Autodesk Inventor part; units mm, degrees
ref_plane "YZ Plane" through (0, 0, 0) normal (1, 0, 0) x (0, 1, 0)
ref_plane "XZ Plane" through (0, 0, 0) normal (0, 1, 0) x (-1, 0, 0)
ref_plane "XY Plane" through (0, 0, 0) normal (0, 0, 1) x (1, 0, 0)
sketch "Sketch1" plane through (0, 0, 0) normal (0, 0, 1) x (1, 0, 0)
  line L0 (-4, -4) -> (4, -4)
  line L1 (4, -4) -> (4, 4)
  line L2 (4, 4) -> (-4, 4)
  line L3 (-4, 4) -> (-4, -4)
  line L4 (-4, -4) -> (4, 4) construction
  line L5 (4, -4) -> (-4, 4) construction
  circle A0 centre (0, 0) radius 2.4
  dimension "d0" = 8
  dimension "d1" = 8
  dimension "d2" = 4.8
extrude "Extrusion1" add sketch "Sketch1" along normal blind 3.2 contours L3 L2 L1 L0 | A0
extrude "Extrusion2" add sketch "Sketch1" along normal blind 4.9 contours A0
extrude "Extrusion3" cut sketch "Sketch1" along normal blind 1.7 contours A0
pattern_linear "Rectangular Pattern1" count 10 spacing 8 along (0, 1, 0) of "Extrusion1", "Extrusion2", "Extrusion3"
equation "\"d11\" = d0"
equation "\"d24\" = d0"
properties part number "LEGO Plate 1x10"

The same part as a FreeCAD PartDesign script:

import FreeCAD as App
import Part
import Sketcher
Q = App.Units.Quantity

doc = App.newDocument("Part")
params = doc.addObject("Spreadsheet::Sheet", "Params")
for row, (alias, value) in enumerate([
    ("sketch1_width", "8 mm"),
    ("pad1_length", "3.2 mm"),
    ("sketch2_diameter", "4.8 mm"),
    ("pad2_length", "4.9 mm"),
    ("sketch3_diameter", "4.8 mm"),
    ("pocket1_length", "1.7 mm"),
    ("linearpattern_pitch", "8 mm"),
], start=1):
    params.set(f"A{row}", alias)
    params.set(f"B{row}", "=" + value)
    params.setAlias(f"B{row}", alias)

body = doc.addObject("PartDesign::Body", "Body")

# Sketch on XY plane
sketch1 = body.newObject("Sketcher::SketchObject", "Sketch")
sketch1.AttachmentSupport = (doc.getObject("XY_Plane"), [""])
sketch1.MapMode = "FlatFace"
sketch1.addGeometry(Part.LineSegment(App.Vector(-4, 4, 0), App.Vector(-4, -4, 0)), False)
sketch1.addGeometry(Part.LineSegment(App.Vector(-4, -4, 0), App.Vector(4, -4, 0)), False)
sketch1.addGeometry(Part.LineSegment(App.Vector(4, -4, 0), App.Vector(4, 4, 0)), False)
sketch1.addGeometry(Part.LineSegment(App.Vector(4, 4, 0), App.Vector(-4, 4, 0)), False)
sketch1.addConstraint(Sketcher.Constraint("Coincident", 0, 2, 1, 1))
sketch1.addConstraint(Sketcher.Constraint("Coincident", 1, 2, 2, 1))
sketch1.addConstraint(Sketcher.Constraint("Coincident", 2, 2, 3, 1))
sketch1.addConstraint(Sketcher.Constraint("Coincident", 3, 2, 0, 1))
sketch1.addConstraint(Sketcher.Constraint("Vertical", 0))
sketch1.addConstraint(Sketcher.Constraint("Horizontal", 1))
sketch1.addConstraint(Sketcher.Constraint("Vertical", 2))
sketch1.addConstraint(Sketcher.Constraint("Horizontal", 3))
sketch1.addConstraint(Sketcher.Constraint("Symmetric", 0, 2, 2, 2, -1, 1))
sketch1.addConstraint(Sketcher.Constraint("Equal", 3, 0))
sketch1.addConstraint(Sketcher.Constraint("DistanceX", 1, 1, 1, 2, Q("8 mm")))
sketch1.setExpression("Constraints[10]", "Params.sketch1_width")
pad1 = body.newObject("PartDesign::Pad", "Pad")
pad1.Profile = sketch1
pad1.setExpression("Length", "Params.pad1_length")

# Sketch on XY plane
sketch2 = body.newObject("Sketcher::SketchObject", "Sketch001")
sketch2.AttachmentSupport = (doc.getObject("XY_Plane"), [""])
sketch2.MapMode = "FlatFace"
sketch2.addGeometry(Part.Circle(App.Vector(0, 0, 0), App.Vector(0, 0, 1), 2.4), False)
sketch2.addConstraint(Sketcher.Constraint("Coincident", 0, 3, -1, 1))
sketch2.addConstraint(Sketcher.Constraint("Diameter", 0, Q("4.8 mm")))
sketch2.setExpression("Constraints[1]", "Params.sketch2_diameter")
pad2 = body.newObject("PartDesign::Pad", "Pad001")
pad2.Profile = sketch2
pad2.setExpression("Length", "Params.pad2_length")

# Sketch on XY plane
sketch3 = body.newObject("Sketcher::SketchObject", "Sketch002")
sketch3.AttachmentSupport = (doc.getObject("XY_Plane"), [""])
sketch3.MapMode = "FlatFace"
sketch3.addGeometry(Part.Circle(App.Vector(0, 0, 0), App.Vector(0, 0, 1), 2.4), False)
sketch3.addConstraint(Sketcher.Constraint("Coincident", 0, 3, -1, 1))
sketch3.addConstraint(Sketcher.Constraint("Diameter", 0, Q("4.8 mm")))
sketch3.setExpression("Constraints[1]", "Params.sketch3_diameter")
pocket1 = body.newObject("PartDesign::Pocket", "Pocket")
pocket1.Profile = sketch3
pocket1.setExpression("Length", "Params.pocket1_length")
pocket1.Reversed = True
doc.recompute()

linearpattern = body.newObject("PartDesign::LinearPattern", "LinearPattern")
linearpattern.Originals = [pad1, pad2, pocket1]
linearpattern.Direction = (doc.getObject("Y_Axis"), [""])
linearpattern.Mode = "offset"
linearpattern.setExpression("Offset", "Params.linearpattern_pitch")
linearpattern.Occurrences = 10
body.Tip = linearpattern

doc.recompute()
